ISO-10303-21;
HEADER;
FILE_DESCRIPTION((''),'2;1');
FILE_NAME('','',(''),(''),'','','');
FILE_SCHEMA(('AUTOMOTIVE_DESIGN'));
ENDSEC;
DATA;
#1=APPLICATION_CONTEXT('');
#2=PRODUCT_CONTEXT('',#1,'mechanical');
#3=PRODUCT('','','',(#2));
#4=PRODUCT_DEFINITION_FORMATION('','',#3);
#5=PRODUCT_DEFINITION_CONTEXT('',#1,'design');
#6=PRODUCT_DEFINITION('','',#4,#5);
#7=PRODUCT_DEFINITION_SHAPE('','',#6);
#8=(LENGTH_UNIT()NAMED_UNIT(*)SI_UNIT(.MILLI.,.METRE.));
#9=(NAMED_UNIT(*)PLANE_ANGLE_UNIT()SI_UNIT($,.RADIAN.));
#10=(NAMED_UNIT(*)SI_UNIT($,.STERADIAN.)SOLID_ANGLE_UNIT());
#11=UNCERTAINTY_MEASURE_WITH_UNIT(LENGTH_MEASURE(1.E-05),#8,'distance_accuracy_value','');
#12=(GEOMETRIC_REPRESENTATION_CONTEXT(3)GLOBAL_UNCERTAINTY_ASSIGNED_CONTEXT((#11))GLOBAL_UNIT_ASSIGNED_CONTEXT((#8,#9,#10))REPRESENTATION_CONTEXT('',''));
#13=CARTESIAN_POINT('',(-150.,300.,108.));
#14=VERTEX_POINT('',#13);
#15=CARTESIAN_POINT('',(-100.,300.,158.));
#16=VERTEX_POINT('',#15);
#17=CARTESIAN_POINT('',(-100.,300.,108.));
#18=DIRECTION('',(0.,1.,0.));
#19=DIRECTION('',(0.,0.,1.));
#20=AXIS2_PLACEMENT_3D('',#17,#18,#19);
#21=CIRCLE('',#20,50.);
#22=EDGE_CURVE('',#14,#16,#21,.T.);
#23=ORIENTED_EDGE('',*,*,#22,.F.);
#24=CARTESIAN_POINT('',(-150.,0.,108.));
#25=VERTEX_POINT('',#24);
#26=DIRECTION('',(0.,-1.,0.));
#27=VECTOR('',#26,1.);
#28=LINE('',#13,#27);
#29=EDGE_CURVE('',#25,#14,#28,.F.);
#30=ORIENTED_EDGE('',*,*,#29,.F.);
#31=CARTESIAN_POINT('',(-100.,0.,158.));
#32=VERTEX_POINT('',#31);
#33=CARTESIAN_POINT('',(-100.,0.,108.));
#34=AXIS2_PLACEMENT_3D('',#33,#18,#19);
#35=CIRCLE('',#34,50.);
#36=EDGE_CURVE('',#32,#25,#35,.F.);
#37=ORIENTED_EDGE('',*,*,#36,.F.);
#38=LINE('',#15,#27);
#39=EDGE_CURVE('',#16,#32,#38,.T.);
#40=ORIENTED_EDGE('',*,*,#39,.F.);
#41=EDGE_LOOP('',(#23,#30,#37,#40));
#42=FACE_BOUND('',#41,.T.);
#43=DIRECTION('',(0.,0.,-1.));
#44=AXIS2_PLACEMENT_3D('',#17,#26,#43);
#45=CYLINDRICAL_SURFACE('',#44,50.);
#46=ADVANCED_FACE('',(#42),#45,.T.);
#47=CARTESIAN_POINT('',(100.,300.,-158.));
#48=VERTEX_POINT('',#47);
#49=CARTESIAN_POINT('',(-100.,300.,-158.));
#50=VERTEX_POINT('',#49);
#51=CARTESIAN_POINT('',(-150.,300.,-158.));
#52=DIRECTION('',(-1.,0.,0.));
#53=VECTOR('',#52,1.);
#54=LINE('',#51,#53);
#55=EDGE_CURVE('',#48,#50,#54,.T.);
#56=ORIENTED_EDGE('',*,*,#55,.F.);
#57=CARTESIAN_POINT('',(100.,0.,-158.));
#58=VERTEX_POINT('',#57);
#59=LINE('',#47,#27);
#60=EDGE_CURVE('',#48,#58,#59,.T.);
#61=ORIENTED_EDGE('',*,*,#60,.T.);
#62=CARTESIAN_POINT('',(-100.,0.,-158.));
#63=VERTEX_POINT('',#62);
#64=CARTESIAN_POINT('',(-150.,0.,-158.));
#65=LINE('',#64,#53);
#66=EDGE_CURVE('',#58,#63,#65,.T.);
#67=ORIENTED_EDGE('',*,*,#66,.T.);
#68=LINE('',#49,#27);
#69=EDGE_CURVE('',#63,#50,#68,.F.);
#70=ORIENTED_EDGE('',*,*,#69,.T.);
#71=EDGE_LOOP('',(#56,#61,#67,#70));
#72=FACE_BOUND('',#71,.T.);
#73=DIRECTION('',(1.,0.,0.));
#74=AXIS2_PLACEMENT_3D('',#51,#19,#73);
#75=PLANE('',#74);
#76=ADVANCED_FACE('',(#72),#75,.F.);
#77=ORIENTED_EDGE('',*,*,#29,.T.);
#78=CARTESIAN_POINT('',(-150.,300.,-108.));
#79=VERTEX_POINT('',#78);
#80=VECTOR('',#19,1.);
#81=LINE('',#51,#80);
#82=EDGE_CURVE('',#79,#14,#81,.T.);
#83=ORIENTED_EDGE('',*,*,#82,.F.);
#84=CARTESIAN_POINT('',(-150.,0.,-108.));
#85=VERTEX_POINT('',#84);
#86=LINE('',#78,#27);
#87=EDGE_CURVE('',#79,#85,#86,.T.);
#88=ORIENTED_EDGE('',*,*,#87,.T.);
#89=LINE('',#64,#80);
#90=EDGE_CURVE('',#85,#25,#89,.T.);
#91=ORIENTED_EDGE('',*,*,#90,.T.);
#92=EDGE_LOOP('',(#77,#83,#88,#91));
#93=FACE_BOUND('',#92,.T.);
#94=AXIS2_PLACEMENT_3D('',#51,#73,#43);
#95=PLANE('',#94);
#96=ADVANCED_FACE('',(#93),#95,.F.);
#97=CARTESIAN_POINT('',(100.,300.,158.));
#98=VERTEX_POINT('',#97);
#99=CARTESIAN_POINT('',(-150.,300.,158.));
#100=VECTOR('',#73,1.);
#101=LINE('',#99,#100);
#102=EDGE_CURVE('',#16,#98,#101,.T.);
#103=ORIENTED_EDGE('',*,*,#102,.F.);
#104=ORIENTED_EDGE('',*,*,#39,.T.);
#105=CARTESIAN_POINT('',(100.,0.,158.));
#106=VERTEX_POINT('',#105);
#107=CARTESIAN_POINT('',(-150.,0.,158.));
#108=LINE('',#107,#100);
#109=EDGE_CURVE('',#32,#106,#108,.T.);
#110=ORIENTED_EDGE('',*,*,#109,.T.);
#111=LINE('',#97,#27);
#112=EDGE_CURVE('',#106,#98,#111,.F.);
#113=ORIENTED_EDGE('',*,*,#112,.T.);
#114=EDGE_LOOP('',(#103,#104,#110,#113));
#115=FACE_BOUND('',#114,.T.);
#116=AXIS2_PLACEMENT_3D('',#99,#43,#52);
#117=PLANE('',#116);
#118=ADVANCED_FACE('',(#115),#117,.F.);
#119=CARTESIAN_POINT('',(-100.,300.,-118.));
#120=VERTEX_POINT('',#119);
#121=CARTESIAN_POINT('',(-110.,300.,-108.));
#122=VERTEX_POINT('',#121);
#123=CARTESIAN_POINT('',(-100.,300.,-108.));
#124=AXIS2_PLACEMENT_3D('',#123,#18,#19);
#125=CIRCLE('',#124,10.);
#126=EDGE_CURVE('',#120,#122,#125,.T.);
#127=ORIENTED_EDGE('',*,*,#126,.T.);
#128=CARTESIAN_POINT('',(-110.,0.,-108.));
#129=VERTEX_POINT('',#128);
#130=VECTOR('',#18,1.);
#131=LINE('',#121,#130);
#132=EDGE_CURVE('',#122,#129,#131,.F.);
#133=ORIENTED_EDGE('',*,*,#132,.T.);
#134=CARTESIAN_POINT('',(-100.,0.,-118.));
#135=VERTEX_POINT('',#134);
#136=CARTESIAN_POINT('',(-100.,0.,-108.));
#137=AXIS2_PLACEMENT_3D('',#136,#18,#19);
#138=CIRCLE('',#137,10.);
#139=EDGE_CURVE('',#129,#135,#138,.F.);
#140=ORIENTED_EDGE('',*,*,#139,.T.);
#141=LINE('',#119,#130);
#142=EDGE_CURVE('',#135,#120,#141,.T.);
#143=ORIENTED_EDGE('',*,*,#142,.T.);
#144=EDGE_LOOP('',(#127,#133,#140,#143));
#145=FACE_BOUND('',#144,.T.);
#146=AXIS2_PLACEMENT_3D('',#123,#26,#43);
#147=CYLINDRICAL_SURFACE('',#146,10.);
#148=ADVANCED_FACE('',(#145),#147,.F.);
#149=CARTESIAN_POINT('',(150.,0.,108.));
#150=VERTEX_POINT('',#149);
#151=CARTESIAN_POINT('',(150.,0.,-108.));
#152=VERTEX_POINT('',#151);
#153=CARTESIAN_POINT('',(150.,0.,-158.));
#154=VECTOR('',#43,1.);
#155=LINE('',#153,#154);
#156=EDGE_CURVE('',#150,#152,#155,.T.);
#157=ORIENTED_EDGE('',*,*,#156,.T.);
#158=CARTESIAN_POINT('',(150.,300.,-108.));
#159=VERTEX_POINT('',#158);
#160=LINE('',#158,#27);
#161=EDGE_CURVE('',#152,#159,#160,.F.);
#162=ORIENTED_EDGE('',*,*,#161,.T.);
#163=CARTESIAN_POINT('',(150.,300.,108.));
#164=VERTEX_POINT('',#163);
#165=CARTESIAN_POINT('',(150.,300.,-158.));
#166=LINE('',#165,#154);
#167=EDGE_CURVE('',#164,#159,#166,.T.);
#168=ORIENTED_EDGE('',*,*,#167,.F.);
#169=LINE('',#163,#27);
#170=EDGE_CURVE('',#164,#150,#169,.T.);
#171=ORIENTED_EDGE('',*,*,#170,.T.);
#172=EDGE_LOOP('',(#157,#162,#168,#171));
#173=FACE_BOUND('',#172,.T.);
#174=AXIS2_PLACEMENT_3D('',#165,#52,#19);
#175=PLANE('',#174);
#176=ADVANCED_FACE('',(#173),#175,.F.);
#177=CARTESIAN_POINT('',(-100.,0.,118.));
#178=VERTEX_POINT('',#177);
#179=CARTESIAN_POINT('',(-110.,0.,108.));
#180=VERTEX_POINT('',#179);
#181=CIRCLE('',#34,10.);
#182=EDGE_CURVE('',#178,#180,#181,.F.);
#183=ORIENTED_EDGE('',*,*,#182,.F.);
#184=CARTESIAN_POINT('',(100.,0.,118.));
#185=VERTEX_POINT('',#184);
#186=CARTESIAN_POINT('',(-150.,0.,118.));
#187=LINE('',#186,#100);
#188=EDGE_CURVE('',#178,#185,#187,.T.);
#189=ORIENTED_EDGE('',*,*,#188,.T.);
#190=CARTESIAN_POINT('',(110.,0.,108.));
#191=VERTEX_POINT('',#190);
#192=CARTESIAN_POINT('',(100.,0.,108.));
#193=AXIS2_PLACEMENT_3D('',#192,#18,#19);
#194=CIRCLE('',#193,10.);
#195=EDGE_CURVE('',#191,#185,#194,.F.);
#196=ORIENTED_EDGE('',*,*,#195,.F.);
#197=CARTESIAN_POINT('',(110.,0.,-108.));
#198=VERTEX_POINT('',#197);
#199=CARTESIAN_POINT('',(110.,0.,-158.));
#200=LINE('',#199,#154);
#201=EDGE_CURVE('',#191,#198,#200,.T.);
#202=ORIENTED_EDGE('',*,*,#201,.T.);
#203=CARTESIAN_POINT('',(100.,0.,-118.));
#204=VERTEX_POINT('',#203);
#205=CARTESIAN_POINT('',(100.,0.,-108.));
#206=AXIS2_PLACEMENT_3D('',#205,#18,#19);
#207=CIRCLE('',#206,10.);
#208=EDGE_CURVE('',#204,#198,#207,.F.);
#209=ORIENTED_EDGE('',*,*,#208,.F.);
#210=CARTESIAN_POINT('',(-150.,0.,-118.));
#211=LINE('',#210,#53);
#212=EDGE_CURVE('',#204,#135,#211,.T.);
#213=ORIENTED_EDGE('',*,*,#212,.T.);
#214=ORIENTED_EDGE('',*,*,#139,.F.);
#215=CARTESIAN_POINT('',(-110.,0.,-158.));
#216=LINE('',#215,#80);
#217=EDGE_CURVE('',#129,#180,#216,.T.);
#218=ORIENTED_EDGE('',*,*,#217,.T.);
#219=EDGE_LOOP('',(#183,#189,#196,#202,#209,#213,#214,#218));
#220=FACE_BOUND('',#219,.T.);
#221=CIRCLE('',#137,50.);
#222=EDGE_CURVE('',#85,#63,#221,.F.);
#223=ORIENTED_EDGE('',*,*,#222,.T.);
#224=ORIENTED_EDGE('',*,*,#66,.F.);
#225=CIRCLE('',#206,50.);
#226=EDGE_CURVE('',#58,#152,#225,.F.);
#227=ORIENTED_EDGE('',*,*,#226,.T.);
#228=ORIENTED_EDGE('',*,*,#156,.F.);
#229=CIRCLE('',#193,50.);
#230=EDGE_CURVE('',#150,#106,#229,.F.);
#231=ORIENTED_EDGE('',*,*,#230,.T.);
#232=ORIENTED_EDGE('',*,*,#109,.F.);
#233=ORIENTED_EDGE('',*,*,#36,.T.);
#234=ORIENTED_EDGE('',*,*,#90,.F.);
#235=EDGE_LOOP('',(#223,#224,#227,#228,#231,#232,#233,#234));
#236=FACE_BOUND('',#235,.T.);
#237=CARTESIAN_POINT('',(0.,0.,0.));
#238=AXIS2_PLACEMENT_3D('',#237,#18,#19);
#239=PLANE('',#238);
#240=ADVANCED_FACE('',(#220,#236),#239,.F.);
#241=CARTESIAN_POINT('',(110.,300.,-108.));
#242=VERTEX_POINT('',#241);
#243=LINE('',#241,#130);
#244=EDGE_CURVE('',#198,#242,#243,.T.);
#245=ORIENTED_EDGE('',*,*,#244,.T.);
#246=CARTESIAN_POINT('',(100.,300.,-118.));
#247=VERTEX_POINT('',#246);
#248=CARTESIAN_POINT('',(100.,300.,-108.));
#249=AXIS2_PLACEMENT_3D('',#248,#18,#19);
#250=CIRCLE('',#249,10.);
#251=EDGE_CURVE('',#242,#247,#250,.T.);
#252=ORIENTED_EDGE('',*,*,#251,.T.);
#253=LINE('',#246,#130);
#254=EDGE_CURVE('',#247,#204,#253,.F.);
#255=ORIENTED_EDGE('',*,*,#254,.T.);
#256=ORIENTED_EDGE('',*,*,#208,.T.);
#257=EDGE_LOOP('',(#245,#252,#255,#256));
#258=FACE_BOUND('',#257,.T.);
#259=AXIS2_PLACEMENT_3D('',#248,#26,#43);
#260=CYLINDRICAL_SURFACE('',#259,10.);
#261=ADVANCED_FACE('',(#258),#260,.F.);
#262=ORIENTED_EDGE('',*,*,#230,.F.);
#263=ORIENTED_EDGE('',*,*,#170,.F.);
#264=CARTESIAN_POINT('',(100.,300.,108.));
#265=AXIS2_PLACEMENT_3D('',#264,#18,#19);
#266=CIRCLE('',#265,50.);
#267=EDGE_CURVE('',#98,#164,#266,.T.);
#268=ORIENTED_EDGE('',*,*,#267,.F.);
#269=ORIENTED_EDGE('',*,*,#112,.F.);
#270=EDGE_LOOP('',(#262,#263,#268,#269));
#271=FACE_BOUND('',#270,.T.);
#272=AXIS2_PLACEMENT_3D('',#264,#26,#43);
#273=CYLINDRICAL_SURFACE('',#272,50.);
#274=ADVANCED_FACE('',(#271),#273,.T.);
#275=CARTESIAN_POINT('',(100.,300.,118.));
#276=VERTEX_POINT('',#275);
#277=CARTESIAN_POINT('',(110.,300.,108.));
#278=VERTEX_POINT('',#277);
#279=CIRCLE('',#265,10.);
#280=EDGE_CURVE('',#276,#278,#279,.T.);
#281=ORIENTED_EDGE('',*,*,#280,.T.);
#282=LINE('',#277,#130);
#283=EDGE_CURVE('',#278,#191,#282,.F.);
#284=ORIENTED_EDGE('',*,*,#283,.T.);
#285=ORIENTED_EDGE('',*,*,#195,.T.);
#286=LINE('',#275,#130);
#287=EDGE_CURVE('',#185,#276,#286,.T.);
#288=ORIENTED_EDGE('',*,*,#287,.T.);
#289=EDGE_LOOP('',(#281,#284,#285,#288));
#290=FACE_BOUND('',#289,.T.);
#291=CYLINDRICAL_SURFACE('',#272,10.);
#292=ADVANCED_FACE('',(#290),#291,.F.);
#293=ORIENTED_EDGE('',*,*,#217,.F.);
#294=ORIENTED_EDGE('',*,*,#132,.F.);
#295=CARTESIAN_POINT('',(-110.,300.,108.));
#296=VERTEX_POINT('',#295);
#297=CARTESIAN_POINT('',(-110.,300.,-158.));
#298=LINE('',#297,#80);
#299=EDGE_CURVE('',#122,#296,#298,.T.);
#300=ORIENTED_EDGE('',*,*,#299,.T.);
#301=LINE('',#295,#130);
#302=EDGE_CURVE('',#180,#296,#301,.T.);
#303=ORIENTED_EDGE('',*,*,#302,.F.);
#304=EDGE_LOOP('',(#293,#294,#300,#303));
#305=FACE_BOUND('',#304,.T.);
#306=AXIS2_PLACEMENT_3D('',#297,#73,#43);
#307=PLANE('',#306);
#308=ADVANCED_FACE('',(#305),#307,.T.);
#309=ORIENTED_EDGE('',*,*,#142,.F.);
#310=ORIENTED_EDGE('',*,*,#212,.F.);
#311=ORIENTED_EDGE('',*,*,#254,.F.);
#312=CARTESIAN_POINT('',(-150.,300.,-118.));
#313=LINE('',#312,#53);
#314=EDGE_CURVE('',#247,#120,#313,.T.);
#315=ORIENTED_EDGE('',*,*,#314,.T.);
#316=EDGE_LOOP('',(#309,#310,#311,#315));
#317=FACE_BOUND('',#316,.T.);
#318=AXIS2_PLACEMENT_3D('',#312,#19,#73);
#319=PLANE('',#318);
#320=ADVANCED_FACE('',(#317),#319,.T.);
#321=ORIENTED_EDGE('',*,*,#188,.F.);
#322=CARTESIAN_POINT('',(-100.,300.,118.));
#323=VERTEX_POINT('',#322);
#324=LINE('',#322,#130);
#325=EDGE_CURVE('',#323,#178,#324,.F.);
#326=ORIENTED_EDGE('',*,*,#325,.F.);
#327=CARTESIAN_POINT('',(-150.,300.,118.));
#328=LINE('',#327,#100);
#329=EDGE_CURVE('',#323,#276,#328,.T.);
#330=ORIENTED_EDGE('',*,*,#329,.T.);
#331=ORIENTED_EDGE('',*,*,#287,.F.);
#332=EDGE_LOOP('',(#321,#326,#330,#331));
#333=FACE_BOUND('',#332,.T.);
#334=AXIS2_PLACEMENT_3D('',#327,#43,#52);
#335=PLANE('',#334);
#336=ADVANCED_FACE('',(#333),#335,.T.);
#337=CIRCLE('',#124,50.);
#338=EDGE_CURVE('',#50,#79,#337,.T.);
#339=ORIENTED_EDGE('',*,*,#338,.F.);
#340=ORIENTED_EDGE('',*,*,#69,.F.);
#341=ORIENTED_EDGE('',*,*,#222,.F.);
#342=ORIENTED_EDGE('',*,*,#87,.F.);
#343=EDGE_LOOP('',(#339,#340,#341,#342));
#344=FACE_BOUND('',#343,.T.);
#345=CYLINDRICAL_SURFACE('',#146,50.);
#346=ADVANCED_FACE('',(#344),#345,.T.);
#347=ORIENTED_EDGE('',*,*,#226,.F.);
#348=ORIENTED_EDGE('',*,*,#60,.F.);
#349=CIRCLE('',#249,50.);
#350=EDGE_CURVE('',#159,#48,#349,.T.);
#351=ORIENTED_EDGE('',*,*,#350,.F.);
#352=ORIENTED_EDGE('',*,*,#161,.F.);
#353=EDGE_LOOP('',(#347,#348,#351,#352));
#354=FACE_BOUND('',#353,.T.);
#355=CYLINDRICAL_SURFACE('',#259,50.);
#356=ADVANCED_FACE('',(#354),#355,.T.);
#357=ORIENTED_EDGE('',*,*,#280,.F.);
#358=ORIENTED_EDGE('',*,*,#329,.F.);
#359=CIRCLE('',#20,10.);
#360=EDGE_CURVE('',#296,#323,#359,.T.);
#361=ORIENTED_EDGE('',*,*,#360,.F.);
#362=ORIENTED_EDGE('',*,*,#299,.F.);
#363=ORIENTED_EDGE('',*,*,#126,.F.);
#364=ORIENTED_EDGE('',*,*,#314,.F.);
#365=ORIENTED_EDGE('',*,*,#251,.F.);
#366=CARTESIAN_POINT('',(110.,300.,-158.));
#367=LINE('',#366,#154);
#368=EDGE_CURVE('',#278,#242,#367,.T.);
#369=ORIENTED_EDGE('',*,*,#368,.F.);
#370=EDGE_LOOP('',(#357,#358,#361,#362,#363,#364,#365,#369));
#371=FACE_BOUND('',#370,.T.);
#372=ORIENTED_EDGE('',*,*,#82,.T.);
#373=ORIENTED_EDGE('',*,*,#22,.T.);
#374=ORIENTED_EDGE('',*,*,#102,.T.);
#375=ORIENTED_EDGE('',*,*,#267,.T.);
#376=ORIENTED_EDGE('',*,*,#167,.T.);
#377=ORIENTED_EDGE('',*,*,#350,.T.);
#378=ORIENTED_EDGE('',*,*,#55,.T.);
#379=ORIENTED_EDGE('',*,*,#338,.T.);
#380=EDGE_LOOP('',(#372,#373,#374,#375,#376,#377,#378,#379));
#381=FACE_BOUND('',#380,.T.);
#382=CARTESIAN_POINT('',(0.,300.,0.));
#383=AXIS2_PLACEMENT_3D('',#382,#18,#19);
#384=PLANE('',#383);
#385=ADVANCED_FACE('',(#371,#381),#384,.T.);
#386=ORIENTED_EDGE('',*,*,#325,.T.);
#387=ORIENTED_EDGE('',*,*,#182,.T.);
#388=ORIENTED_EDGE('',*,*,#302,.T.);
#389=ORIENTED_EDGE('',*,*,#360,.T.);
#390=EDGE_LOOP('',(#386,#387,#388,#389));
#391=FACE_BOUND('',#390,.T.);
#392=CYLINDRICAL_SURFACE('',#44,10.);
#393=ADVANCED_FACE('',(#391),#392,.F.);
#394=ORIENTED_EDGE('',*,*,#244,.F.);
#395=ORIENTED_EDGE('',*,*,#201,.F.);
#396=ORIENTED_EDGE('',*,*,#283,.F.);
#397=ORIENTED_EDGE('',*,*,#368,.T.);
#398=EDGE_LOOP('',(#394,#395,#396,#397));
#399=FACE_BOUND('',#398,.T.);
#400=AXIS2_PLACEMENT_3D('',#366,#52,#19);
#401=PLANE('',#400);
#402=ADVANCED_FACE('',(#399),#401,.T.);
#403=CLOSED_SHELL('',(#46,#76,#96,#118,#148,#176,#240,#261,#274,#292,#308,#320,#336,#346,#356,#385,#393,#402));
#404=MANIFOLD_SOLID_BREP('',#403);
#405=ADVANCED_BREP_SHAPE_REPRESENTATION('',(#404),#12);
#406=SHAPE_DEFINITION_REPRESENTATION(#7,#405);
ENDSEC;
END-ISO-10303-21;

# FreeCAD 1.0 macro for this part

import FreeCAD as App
import Part
import Sketcher
from FreeCAD import Vector
Q = App.Units.Quantity


def edges_at(feature, points):
    """Names of the edges that pass closest to the given points."""
    edges = feature.Shape.Edges
    near = lambda p: min(range(len(edges)), key=lambda i: edges[i].distToShape(Part.Vertex(*p))[0])
    return sorted({f"Edge{near(p) + 1}" for p in points})


def faces_at(feature, points):
    """Names of the faces that lie closest to the given points."""
    faces = feature.Shape.Faces
    near = lambda p: min(range(len(faces)), key=lambda i: faces[i].distToShape(Part.Vertex(*p))[0])
    return sorted({f"Face{near(p) + 1}" for p in points})

doc = App.newDocument("Part")
body = doc.addObject("PartDesign::Body", "Body")

# Sketch on XZ plane
sketch1 = doc.addObject("Sketcher::SketchObject", "Sketch")
body.addObject(sketch1)
sketch1.AttachmentSupport = (doc.XZ_Plane, [""])
sketch1.MapMode = "FlatFace"
sketch1.addGeometry(Part.LineSegment(Vector(-150, -158, 0), Vector(-150, 158, 0)), False)
sketch1.addGeometry(Part.LineSegment(Vector(-150, 158, 0), Vector(150, 158, 0)), False)
sketch1.addGeometry(Part.LineSegment(Vector(150, 158, 0), Vector(150, -158, 0)), False)
sketch1.addGeometry(Part.LineSegment(Vector(150, -158, 0), Vector(-150, -158, 0)), False)
sketch1.addConstraint(Sketcher.Constraint("Coincident", 0, 2, 1, 1))
sketch1.addConstraint(Sketcher.Constraint("Coincident", 1, 2, 2, 1))
sketch1.addConstraint(Sketcher.Constraint("Coincident", 2, 2, 3, 1))
sketch1.addConstraint(Sketcher.Constraint("Coincident", 3, 2, 0, 1))
sketch1.addConstraint(Sketcher.Constraint("Vertical", 0))
sketch1.addConstraint(Sketcher.Constraint("Horizontal", 1))
sketch1.addConstraint(Sketcher.Constraint("Vertical", 2))
sketch1.addConstraint(Sketcher.Constraint("Horizontal", 3))
sketch1.addConstraint(Sketcher.Constraint("Symmetric", 0, 2, 2, 2, -1, 1))
sketch1.addConstraint(Sketcher.Constraint("DistanceX", 1, 1, 1, 2, Q("300 mm")))
sketch1.addConstraint(Sketcher.Constraint("DistanceY", 0, 1, 0, 2, Q("316 mm")))
pad1 = doc.addObject("PartDesign::Pad", "Pad")
body.addObject(pad1)
pad1.Profile = sketch1
pad1.Length = 300
pad1.Reversed = True
doc.recompute()

fillet = doc.addObject("PartDesign::Fillet", "Fillet")
body.addObject(fillet)
fillet.Base = (pad1, edges_at(pad1, [
    (-150, 150, -158),
    (150, 150, -158),
    (150, 150, 158),
    (-150, 150, 158),
]))
fillet.Radius = 50
doc.recompute()

thickness = doc.addObject("PartDesign::Thickness", "Thickness")
body.addObject(thickness)
thickness.Base = (fillet, faces_at(fillet, [(0, 300, 0), (0, 0, 0)]))
thickness.Value = 40
thickness.Reversed = True
thickness.Join = "Intersection"

doc.recompute()
